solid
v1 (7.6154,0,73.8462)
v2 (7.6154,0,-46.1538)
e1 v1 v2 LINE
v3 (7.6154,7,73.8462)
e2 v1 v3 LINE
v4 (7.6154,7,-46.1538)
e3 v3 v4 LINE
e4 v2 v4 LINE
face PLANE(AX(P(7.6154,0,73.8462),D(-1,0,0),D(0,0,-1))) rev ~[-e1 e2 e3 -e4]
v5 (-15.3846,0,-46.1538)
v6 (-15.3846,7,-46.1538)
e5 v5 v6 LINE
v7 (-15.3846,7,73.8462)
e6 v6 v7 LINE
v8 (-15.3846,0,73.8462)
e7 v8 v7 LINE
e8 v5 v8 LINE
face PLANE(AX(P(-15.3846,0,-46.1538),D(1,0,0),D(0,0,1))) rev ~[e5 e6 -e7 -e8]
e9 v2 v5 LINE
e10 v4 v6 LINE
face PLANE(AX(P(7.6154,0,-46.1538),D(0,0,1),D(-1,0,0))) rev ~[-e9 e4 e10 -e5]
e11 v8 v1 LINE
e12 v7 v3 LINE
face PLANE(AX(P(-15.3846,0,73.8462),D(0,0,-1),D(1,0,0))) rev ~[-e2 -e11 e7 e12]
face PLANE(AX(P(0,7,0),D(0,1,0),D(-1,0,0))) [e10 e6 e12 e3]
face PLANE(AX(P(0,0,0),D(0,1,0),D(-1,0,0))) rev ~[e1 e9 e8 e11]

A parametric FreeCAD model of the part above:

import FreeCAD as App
import Part
import Sketcher
from FreeCAD import Vector


def add_polygon(sketch, points):
    """Adds a closed chain of lines whose ends are joined by coincident constraints."""
    first, n = sketch.GeometryCount, len(points)
    for a, b in zip(points, points[1:] + points[:1]):
        sketch.addGeometry(Part.LineSegment(App.Vector(*a, 0), App.Vector(*b, 0)), False)
    for i in range(n):
        sketch.addConstraint(Sketcher.Constraint("Coincident", first + i, 2, first + (i + 1) % n, 1))

doc = App.newDocument("Part")
body = doc.addObject("PartDesign::Body", "Body")

# Sketch on XZ plane
sketch1 = body.newObject("Sketcher::SketchObject", "Sketch")
sketch1.AttachmentSupport = (doc.getObject("XZ_Plane"), [""])
sketch1.MapMode = "FlatFace"
add_polygon(sketch1, [(-15, -46), (-15, 74), (8, 74), (8, -46)])  # lines 0-3
sketch1.addConstraint([
    Sketcher.Constraint("Vertical", 0),
    Sketcher.Constraint("Horizontal", 1),
    Sketcher.Constraint("Vertical", 2),
    Sketcher.Constraint("Horizontal", 3),
    Sketcher.Constraint("DistanceX", 1, 1, 1, 2, 23.0),
    Sketcher.Constraint("DistanceY", 0, 1, 0, 2, 120.0),
    Sketcher.Constraint("DistanceX", 0, 2, -1, 1, 15.3846),
    Sketcher.Constraint("DistanceY", -1, 1, 0, 2, 73.8462),
])
pad1 = body.newObject("PartDesign::Pad", "Pad")
pad1.Profile = sketch1
pad1.Length = 7
pad1.Reversed = True

doc.recompute()
